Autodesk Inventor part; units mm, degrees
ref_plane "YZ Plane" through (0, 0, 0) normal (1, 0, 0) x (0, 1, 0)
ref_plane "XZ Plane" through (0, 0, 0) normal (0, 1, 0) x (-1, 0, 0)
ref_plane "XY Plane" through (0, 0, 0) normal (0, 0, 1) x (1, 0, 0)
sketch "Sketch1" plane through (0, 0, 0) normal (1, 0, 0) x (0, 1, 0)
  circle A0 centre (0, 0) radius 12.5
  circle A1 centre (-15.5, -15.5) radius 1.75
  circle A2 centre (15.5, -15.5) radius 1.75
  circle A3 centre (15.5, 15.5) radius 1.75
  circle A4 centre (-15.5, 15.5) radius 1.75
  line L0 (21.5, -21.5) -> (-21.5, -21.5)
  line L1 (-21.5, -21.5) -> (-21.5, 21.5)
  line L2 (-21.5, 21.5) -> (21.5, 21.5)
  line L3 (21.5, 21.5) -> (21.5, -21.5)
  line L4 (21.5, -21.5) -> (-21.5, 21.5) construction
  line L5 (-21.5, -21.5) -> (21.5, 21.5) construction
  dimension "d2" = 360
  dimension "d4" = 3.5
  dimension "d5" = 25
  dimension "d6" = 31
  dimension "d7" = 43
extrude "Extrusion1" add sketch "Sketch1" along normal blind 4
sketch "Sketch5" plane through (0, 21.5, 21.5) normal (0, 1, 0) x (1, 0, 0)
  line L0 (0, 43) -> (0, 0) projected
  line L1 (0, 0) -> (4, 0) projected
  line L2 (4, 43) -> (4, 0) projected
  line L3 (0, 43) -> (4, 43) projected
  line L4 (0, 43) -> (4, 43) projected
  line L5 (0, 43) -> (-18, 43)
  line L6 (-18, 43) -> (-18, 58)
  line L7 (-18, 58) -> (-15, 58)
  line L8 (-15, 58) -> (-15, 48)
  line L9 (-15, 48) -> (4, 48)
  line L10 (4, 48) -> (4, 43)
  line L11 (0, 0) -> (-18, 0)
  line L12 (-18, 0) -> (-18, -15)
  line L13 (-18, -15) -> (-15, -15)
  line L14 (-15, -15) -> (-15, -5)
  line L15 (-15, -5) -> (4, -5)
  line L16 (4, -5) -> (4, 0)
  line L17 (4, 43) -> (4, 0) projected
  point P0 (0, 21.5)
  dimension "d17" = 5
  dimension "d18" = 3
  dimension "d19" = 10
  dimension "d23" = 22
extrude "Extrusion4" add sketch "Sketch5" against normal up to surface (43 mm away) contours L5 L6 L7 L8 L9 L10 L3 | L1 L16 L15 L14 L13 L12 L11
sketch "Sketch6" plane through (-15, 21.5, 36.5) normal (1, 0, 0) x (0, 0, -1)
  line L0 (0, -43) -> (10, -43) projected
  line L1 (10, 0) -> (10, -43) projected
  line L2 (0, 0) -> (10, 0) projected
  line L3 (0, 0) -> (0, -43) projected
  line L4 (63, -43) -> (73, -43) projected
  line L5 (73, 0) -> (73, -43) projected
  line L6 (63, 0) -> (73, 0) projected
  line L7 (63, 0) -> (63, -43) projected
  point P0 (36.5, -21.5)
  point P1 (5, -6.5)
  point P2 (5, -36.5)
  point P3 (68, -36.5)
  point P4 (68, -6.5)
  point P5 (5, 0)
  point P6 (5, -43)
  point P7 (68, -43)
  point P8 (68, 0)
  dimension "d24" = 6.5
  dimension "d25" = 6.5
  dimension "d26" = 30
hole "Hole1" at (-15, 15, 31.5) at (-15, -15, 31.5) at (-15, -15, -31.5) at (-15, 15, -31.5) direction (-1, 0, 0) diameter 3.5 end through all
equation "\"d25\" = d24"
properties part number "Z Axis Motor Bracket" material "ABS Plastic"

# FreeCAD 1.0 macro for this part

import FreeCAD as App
import Part
import Sketcher

V = App.Vector
Q = App.Units.Quantity

doc = App.newDocument("Part")
body = doc.addObject("PartDesign::Body", "Body")

# Sketch on YZ plane
sketch1 = body.newObject("Sketcher::SketchObject", "Sketch")
sketch1.AttachmentSupport = (doc.getObject("YZ_Plane"), [""])
sketch1.MapMode = "FlatFace"
sketch1.addGeometry([
    Part.LineSegment(V(-21.5, -21.5, 0), V(21.5, -21.5, 0)),  # 0
    Part.LineSegment(V(21.5, -21.5, 0), V(21.5, 21.5, 0)),  # 1
    Part.LineSegment(V(21.5, 21.5, 0), V(-21.5, 21.5, 0)),  # 2
    Part.LineSegment(V(-21.5, 21.5, 0), V(-21.5, -21.5, 0)),  # 3
    Part.Circle(V(-15.5, -15.5, 0), V(0, 0, 1), 1.8),  # 4
    Part.Circle(V(15.5, -15.5, 0), V(0, 0, 1), 1.8),  # 5
    Part.Circle(V(-15.5, 15.5, 0), V(0, 0, 1), 1.8),  # 6
    Part.Circle(V(0, 0, 0), V(0, 0, 1), 12.5),  # 7
    Part.Circle(V(15.5, 15.5, 0), V(0, 0, 1), 1.8),  # 8
], False)
sketch1.addConstraint([
    Sketcher.Constraint("Coincident", 0, 2, 1, 1),
    Sketcher.Constraint("Coincident", 1, 2, 2, 1),
    Sketcher.Constraint("Coincident", 2, 2, 3, 1),
    Sketcher.Constraint("Coincident", 3, 2, 0, 1),
    Sketcher.Constraint("Horizontal", 0),
    Sketcher.Constraint("Vertical", 1),
    Sketcher.Constraint("Horizontal", 2),
    Sketcher.Constraint("Vertical", 3),
    Sketcher.Constraint("Coincident", 7, 3, -1, 1),
    Sketcher.Constraint("Equal", 4, 5),
    Sketcher.Constraint("Equal", 5, 6),
    Sketcher.Constraint("Equal", 6, 8),
    Sketcher.Constraint("Symmetric", 5, 3, 6, 3, -1, 1),
    Sketcher.Constraint("Symmetric", 4, 3, 8, 3, -1, 1),
    Sketcher.Constraint("Symmetric", 0, 2, 2, 2, -1, 1),
    Sketcher.Constraint("Symmetric", 4, 3, 5, 3, -2),
    Sketcher.Constraint("Equal", 2, 1),
    Sketcher.Constraint("Diameter", 7, Q("25 mm")),
    Sketcher.Constraint("Diameter", 4, Q("3.5 mm")),
    Sketcher.Constraint("DistanceX", 0, 1, 0, 2, Q("43 mm")),
    Sketcher.Constraint("DistanceX", 4, 3, 5, 3, Q("31 mm")),
    Sketcher.Constraint("DistanceY", 4, 3, 6, 3, Q("31 mm")),
])
pad1 = body.newObject("PartDesign::Pad", "Pad")
pad1.Profile = sketch1
pad1.Length = 4

# Sketch on XZ plane
sketch2 = body.newObject("Sketcher::SketchObject", "Sketch001")
sketch2.AttachmentSupport = (doc.getObject("XZ_Plane"), [""])
sketch2.MapMode = "FlatFace"
sketch2.AttachmentOffset = App.Placement(V(0, 0, -21.5), App.Rotation())
sketch2.addGeometry([
    Part.LineSegment(V(-18, -21.5, 0), V(4, -21.5, 0)),  # 0
    Part.LineSegment(V(4, -21.5, 0), V(4, -26.5, 0)),  # 1
    Part.LineSegment(V(4, -26.5, 0), V(-15, -26.5, 0)),  # 2
    Part.LineSegment(V(-15, -26.5, 0), V(-15, -36.5, 0)),  # 3
    Part.LineSegment(V(-15, -36.5, 0), V(-18, -36.5, 0)),  # 4
    Part.LineSegment(V(-18, -36.5, 0), V(-18, -21.5, 0)),  # 5
    Part.LineSegment(V(4, 21.5, 0), V(-18, 21.5, 0)),  # 6
    Part.LineSegment(V(-18, 21.5, 0), V(-18, 36.5, 0)),  # 7
    Part.LineSegment(V(-18, 36.5, 0), V(-15, 36.5, 0)),  # 8
    Part.LineSegment(V(-15, 36.5, 0), V(-15, 26.5, 0)),  # 9
    Part.LineSegment(V(-15, 26.5, 0), V(4, 26.5, 0)),  # 10
    Part.LineSegment(V(4, 26.5, 0), V(4, 21.5, 0)),  # 11
], False)
sketch2.addConstraint([
    Sketcher.Constraint("Coincident", 0, 2, 1, 1),
    Sketcher.Constraint("Coincident", 1, 2, 2, 1),
    Sketcher.Constraint("Coincident", 2, 2, 3, 1),
    Sketcher.Constraint("Coincident", 3, 2, 4, 1),
    Sketcher.Constraint("Coincident", 4, 2, 5, 1),
    Sketcher.Constraint("Coincident", 5, 2, 0, 1),
    Sketcher.Constraint("Coincident", 6, 2, 7, 1),
    Sketcher.Constraint("Coincident", 7, 2, 8, 1),
    Sketcher.Constraint("Coincident", 8, 2, 9, 1),
    Sketcher.Constraint("Coincident", 9, 2, 10, 1),
    Sketcher.Constraint("Coincident", 10, 2, 11, 1),
    Sketcher.Constraint("Coincident", 11, 2, 6, 1),
    Sketcher.Constraint("Horizontal", 0),
    Sketcher.Constraint("Vertical", 1),
    Sketcher.Constraint("Horizontal", 2),
    Sketcher.Constraint("Vertical", 3),
    Sketcher.Constraint("Horizontal", 4),
    Sketcher.Constraint("Vertical", 5),
    Sketcher.Constraint("Horizontal", 6),
    Sketcher.Constraint("Vertical", 7),
    Sketcher.Constraint("Horizontal", 8),
    Sketcher.Constraint("Vertical", 9),
    Sketcher.Constraint("Horizontal", 10),
    Sketcher.Constraint("Vertical", 11),
    Sketcher.Constraint("Symmetric", 5, 2, 6, 2, -1),
    Sketcher.Constraint("Symmetric", 3, 2, 8, 2, -1),
    Sketcher.Constraint("Symmetric", 1, 2, 10, 2, -1),
    Sketcher.Constraint("DistanceX", 0, 1, 0, 2, Q("22 mm")),
    Sketcher.Constraint("DistanceX", 4, 2, 4, 1, Q("3 mm")),
    Sketcher.Constraint("DistanceY", 1, 2, 1, 1, Q("5 mm")),
    Sketcher.Constraint("DistanceY", 3, 2, 3, 1, Q("10 mm")),
    Sketcher.Constraint("DistanceX", -1, 1, 0, 2, Q("4 mm")),
    Sketcher.Constraint("DistanceY", 5, 2, 6, 2, Q("43 mm")),
])
pad2 = body.newObject("PartDesign::Pad", "Pad001")
pad2.Profile = sketch2
pad2.Length = 43

# Sketch on YZ plane
sketch3 = body.newObject("Sketcher::SketchObject", "Sketch002")
sketch3.AttachmentSupport = (doc.getObject("YZ_Plane"), [""])
sketch3.MapMode = "FlatFace"
sketch3.AttachmentOffset = App.Placement(V(0, 0, -15), App.Rotation())
sketch3.addGeometry([
    Part.Circle(V(15, 31.5, 0), V(0, 0, 1), 1.8),
    Part.Circle(V(-15, 31.5, 0), V(0, 0, 1), 1.8),
    Part.Circle(V(-15, -31.5, 0), V(0, 0, 1), 1.8),
    Part.Circle(V(15, -31.5, 0), V(0, 0, 1), 1.8),
], False)
sketch3.addConstraint([
    Sketcher.Constraint("Equal", 0, 1),
    Sketcher.Constraint("Equal", 1, 2),
    Sketcher.Constraint("Equal", 2, 3),
    Sketcher.Constraint("Symmetric", 0, 3, 2, 3, -1, 1),
    Sketcher.Constraint("Symmetric", 1, 3, 3, 3, -1, 1),
    Sketcher.Constraint("Symmetric", 0, 3, 1, 3, -2),
    Sketcher.Constraint("Diameter", 0, Q("3.5 mm")),
    Sketcher.Constraint("DistanceX", -1, 1, 0, 3, Q("15 mm")),
    Sketcher.Constraint("DistanceY", 2, 3, 1, 3, Q("63 mm")),
])
doc.recompute()
hole = body.newObject("PartDesign::Hole", "Hole")
hole.Profile = sketch3
hole.ThreadType = "None"
hole.Diameter = 3.5
hole.DepthType = "ThroughAll"

doc.recompute()
